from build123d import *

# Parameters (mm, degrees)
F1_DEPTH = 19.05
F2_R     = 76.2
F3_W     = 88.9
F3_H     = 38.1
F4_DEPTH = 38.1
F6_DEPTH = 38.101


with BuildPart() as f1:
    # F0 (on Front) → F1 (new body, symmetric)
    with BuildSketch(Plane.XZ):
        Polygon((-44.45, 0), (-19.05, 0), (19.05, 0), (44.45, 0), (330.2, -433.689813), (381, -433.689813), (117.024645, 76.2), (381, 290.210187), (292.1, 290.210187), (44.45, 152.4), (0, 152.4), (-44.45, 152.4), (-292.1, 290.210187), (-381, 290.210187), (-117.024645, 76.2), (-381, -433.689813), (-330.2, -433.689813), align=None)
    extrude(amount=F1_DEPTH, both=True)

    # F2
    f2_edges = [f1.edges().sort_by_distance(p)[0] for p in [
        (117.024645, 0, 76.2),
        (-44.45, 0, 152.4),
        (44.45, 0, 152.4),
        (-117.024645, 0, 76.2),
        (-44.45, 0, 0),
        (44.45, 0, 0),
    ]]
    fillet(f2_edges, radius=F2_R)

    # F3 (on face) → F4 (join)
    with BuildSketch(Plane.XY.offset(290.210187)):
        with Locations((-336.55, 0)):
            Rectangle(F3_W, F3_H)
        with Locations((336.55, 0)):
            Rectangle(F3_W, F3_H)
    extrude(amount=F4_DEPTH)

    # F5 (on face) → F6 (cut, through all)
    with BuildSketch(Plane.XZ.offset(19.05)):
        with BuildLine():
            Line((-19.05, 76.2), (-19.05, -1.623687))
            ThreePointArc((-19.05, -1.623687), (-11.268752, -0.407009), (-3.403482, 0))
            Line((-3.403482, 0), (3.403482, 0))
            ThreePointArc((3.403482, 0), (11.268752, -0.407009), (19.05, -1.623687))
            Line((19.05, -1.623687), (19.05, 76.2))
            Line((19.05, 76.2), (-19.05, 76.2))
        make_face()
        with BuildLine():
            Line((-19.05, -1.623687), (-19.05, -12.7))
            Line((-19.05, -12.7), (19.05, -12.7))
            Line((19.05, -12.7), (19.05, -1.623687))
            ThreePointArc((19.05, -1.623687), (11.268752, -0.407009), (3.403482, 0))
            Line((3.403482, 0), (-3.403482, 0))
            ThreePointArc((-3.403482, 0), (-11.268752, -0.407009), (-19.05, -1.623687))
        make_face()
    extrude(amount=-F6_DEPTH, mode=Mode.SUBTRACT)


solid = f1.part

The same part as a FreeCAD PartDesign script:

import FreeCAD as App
import Part
import Sketcher
Q = App.Units.Quantity


def edges_at(feature, points):
    """Names of the edges that pass closest to the given points."""
    edges = feature.Shape.Edges
    near = lambda p: min(range(len(edges)), key=lambda i: edges[i].distToShape(Part.Vertex(*p))[0])
    return sorted({f"Edge{near(p) + 1}" for p in points})


def add_polygon(sketch, points):
    """Adds a closed chain of lines whose ends are joined by coincident constraints."""
    first, n = sketch.GeometryCount, len(points)
    for a, b in zip(points, points[1:] + points[:1]):
        sketch.addGeometry(Part.LineSegment(App.Vector(*a, 0), App.Vector(*b, 0)), False)
    for i in range(n):
        sketch.addConstraint(Sketcher.Constraint("Coincident", first + i, 2, first + (i + 1) % n, 1))

doc = App.newDocument("Part")
body = doc.addObject("PartDesign::Body", "Body")

sketch1 = doc.addObject("Sketcher::SketchObject", "Sketch")
body.addObject(sketch1)
sketch1.AttachmentSupport = (doc.XZ_Plane, [""])
sketch1.MapMode = "FlatFace"
add_polygon(sketch1, [(-44.45, 0), (44.45, 0), (330.2, -433.689813), (381, -433.689813), (117.024645, 76.2), (381, 290.210187), (292.1, 290.210187), (44.45, 152.4), (-44.45, 152.4), (-292.1, 290.210187), (-381, 290.210187), (-117.024645, 76.2), (-381, -433.689813), (-330.2, -433.689813)])
sketch1.addConstraint(Sketcher.Constraint("Horizontal", 0))
sketch1.addConstraint(Sketcher.Constraint("Horizontal", 2))
sketch1.addConstraint(Sketcher.Constraint("Horizontal", 5))
sketch1.addConstraint(Sketcher.Constraint("Horizontal", 7))
sketch1.addConstraint(Sketcher.Constraint("Horizontal", 9))
sketch1.addConstraint(Sketcher.Constraint("Horizontal", 12))
sketch1.addConstraint(Sketcher.Constraint("Symmetric", 0, 2, 13, 2, -1, 1))
sketch1.addConstraint(Sketcher.Constraint("Symmetric", 5, 2, 8, 2, -2))
sketch1.addConstraint(Sketcher.Constraint("Symmetric", 3, 2, 10, 2, -2))
sketch1.addConstraint(Sketcher.Constraint("Symmetric", 2, 2, 11, 2, -2))
sketch1.addConstraint(Sketcher.Constraint("Vertical", 2, 2, 4, 2))
sketch1.addConstraint(Sketcher.Constraint("Vertical", 0, 2, 6, 2))
sketch1.addConstraint(Sketcher.Constraint("Vertical", 9, 2, 11, 2))
sketch1.addConstraint(Sketcher.Constraint("Vertical", 7, 2, 13, 2))
sketch1.addConstraint(Sketcher.Constraint("Equal", 0, 5))
sketch1.addConstraint(Sketcher.Constraint("Equal", 2, 12))
sketch1.addConstraint(Sketcher.Constraint("DistanceX", 2, 1, 2, 2, Q("2 in")))
sketch1.addConstraint(Sketcher.Constraint("DistanceX", 0, 1, 0, 2, Q("3.5 in")))
sketch1.addConstraint(Sketcher.Constraint("DistanceX", -1, 1, 1, 2, Q("13 in")))
sketch1.addConstraint(Sketcher.Constraint("DistanceY", -1, 1, 3, 2, Q("3 in")))
sketch1.addConstraint(Sketcher.Constraint("DistanceY", -1, 1, 6, 2, Q("6 in")))
sketch1.addConstraint(Sketcher.Constraint("DistanceY", 2, 2, 4, 2, Q("28.5 in")))
sketch1.addConstraint(Sketcher.Constraint("Distance", 4, 339.82841))
sketch1.addConstraint(Sketcher.Constraint("Distance", 6, 283.411662))
pad1 = doc.addObject("PartDesign::Pad", "Pad")
body.addObject(pad1)
pad1.Profile = sketch1
pad1.Length = Q("1.5 in")
pad1.Midplane = True
doc.recompute()

fillet = doc.addObject("PartDesign::Fillet", "Fillet")
body.addObject(fillet)
fillet.Base = (pad1, edges_at(pad1, [
    (117.025, 0, 76.2),
    (-44.45, 0, 152.4),
    (44.45, 0, 152.4),
    (-117.025, 0, 76.2),
    (-44.45, 0, 0),
    (44.45, 0, 0),
]))
fillet.Radius = Q("3 in")

sketch2 = doc.addObject("Sketcher::SketchObject", "Sketch001")
body.addObject(sketch2)
sketch2.AttachmentSupport = (doc.XY_Plane, [""])
sketch2.MapMode = "FlatFace"
sketch2.AttachmentOffset = App.Placement(App.Vector(0, 0, 290.210187), App.Rotation())
add_polygon(sketch2, [(-381, 19.05), (-381, -19.05), (-292.1, -19.05), (-292.1, 19.05)])
add_polygon(sketch2, [(292.1, 19.05), (292.1, -19.05), (381, -19.05), (381, 19.05)])
sketch2.addConstraint(Sketcher.Constraint("Vertical", 0))
sketch2.addConstraint(Sketcher.Constraint("Horizontal", 1))
sketch2.addConstraint(Sketcher.Constraint("Vertical", 2))
sketch2.addConstraint(Sketcher.Constraint("Horizontal", 3))
sketch2.addConstraint(Sketcher.Constraint("Vertical", 4))
sketch2.addConstraint(Sketcher.Constraint("Horizontal", 5))
sketch2.addConstraint(Sketcher.Constraint("Vertical", 6))
sketch2.addConstraint(Sketcher.Constraint("Horizontal", 7))
sketch2.addConstraint(Sketcher.Constraint("Symmetric", 2, 2, 4, 2, -1, 1))
sketch2.addConstraint(Sketcher.Constraint("Symmetric", 0, 2, 6, 2, -1, 1))
sketch2.addConstraint(Sketcher.Constraint("Horizontal", 1, 2, 4, 2))
sketch2.addConstraint(Sketcher.Constraint("DistanceX", 1, 1, 1, 2, Q("3.5 in")))
sketch2.addConstraint(Sketcher.Constraint("DistanceY", 0, 2, 0, 1, Q("1.5 in")))
sketch2.addConstraint(Sketcher.Constraint("DistanceX", 0, 2, -1, 1, Q("15 in")))
pad2 = doc.addObject("PartDesign::Pad", "Pad001")
body.addObject(pad2)
pad2.Profile = sketch2
pad2.Length = Q("1.5 in")

sketch3 = doc.addObject("Sketcher::SketchObject", "Sketch002")
body.addObject(sketch3)
sketch3.AttachmentSupport = (doc.XZ_Plane, [""])
sketch3.MapMode = "FlatFace"
sketch3.AttachmentOffset = App.Placement(App.Vector(0, 0, 0.75 * 25.4), App.Rotation())
add_polygon(sketch3, [(-19.05, 76.2), (-19.05, -12.7), (19.05, -12.7), (19.05, 76.2)])
sketch3.addConstraint(Sketcher.Constraint("Vertical", 0))
sketch3.addConstraint(Sketcher.Constraint("Horizontal", 1))
sketch3.addConstraint(Sketcher.Constraint("Vertical", 2))
sketch3.addConstraint(Sketcher.Constraint("Horizontal", 3))
sketch3.addConstraint(Sketcher.Constraint("DistanceX", 1, 1, 1, 2, Q("1.5 in")))
sketch3.addConstraint(Sketcher.Constraint("DistanceY", 0, 2, 0, 1, Q("3.5 in")))
sketch3.addConstraint(Sketcher.Constraint("DistanceY", -1, 1, 2, 2, Q("3 in")))
sketch3.addConstraint(Sketcher.Constraint("DistanceX", 0, 2, -1, 1, Q("0.75 in")))
pocket1 = doc.addObject("PartDesign::Pocket", "Pocket")
body.addObject(pocket1)
pocket1.Profile = sketch3
pocket1.Type = "ThroughAll"

doc.recompute()
